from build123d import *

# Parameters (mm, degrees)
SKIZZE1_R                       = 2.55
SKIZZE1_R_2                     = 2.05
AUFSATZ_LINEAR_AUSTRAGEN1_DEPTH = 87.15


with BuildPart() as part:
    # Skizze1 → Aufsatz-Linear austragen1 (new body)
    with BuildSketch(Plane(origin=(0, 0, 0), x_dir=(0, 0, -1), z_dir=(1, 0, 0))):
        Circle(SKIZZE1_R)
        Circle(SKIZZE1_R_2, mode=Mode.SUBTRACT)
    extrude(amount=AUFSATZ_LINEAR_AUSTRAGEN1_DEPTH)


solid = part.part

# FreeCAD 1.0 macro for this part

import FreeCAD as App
import Part
import Sketcher
from FreeCAD import Vector
Q = App.Units.Quantity

doc = App.newDocument("Part")
body = doc.addObject("PartDesign::Body", "Body")

# Sketch on YZ plane
sketch1 = doc.addObject("Sketcher::SketchObject", "Sketch")
body.addObject(sketch1)
sketch1.AttachmentSupport = (doc.YZ_Plane, [""])
sketch1.MapMode = "FlatFace"
sketch1.addGeometry([
    Part.Circle(Vector(0, 0, 0), Vector(0, 0, 1), 2.55),
    Part.Circle(Vector(0, 0, 0), Vector(0, 0, 1), 2.05),
], False)
sketch1.addConstraint([
    Sketcher.Constraint("Coincident", 0, 3, -1, 1),
    Sketcher.Constraint("Coincident", 1, 3, -1, 1),
    Sketcher.Constraint("Diameter", 0, Q("5.1 mm")),
    Sketcher.Constraint("Diameter", 1, Q("4.1 mm")),
])
pad1 = doc.addObject("PartDesign::Pad", "Pad")
body.addObject(pad1)
pad1.Profile = sketch1
pad1.Length = 87.15

doc.recompute()
